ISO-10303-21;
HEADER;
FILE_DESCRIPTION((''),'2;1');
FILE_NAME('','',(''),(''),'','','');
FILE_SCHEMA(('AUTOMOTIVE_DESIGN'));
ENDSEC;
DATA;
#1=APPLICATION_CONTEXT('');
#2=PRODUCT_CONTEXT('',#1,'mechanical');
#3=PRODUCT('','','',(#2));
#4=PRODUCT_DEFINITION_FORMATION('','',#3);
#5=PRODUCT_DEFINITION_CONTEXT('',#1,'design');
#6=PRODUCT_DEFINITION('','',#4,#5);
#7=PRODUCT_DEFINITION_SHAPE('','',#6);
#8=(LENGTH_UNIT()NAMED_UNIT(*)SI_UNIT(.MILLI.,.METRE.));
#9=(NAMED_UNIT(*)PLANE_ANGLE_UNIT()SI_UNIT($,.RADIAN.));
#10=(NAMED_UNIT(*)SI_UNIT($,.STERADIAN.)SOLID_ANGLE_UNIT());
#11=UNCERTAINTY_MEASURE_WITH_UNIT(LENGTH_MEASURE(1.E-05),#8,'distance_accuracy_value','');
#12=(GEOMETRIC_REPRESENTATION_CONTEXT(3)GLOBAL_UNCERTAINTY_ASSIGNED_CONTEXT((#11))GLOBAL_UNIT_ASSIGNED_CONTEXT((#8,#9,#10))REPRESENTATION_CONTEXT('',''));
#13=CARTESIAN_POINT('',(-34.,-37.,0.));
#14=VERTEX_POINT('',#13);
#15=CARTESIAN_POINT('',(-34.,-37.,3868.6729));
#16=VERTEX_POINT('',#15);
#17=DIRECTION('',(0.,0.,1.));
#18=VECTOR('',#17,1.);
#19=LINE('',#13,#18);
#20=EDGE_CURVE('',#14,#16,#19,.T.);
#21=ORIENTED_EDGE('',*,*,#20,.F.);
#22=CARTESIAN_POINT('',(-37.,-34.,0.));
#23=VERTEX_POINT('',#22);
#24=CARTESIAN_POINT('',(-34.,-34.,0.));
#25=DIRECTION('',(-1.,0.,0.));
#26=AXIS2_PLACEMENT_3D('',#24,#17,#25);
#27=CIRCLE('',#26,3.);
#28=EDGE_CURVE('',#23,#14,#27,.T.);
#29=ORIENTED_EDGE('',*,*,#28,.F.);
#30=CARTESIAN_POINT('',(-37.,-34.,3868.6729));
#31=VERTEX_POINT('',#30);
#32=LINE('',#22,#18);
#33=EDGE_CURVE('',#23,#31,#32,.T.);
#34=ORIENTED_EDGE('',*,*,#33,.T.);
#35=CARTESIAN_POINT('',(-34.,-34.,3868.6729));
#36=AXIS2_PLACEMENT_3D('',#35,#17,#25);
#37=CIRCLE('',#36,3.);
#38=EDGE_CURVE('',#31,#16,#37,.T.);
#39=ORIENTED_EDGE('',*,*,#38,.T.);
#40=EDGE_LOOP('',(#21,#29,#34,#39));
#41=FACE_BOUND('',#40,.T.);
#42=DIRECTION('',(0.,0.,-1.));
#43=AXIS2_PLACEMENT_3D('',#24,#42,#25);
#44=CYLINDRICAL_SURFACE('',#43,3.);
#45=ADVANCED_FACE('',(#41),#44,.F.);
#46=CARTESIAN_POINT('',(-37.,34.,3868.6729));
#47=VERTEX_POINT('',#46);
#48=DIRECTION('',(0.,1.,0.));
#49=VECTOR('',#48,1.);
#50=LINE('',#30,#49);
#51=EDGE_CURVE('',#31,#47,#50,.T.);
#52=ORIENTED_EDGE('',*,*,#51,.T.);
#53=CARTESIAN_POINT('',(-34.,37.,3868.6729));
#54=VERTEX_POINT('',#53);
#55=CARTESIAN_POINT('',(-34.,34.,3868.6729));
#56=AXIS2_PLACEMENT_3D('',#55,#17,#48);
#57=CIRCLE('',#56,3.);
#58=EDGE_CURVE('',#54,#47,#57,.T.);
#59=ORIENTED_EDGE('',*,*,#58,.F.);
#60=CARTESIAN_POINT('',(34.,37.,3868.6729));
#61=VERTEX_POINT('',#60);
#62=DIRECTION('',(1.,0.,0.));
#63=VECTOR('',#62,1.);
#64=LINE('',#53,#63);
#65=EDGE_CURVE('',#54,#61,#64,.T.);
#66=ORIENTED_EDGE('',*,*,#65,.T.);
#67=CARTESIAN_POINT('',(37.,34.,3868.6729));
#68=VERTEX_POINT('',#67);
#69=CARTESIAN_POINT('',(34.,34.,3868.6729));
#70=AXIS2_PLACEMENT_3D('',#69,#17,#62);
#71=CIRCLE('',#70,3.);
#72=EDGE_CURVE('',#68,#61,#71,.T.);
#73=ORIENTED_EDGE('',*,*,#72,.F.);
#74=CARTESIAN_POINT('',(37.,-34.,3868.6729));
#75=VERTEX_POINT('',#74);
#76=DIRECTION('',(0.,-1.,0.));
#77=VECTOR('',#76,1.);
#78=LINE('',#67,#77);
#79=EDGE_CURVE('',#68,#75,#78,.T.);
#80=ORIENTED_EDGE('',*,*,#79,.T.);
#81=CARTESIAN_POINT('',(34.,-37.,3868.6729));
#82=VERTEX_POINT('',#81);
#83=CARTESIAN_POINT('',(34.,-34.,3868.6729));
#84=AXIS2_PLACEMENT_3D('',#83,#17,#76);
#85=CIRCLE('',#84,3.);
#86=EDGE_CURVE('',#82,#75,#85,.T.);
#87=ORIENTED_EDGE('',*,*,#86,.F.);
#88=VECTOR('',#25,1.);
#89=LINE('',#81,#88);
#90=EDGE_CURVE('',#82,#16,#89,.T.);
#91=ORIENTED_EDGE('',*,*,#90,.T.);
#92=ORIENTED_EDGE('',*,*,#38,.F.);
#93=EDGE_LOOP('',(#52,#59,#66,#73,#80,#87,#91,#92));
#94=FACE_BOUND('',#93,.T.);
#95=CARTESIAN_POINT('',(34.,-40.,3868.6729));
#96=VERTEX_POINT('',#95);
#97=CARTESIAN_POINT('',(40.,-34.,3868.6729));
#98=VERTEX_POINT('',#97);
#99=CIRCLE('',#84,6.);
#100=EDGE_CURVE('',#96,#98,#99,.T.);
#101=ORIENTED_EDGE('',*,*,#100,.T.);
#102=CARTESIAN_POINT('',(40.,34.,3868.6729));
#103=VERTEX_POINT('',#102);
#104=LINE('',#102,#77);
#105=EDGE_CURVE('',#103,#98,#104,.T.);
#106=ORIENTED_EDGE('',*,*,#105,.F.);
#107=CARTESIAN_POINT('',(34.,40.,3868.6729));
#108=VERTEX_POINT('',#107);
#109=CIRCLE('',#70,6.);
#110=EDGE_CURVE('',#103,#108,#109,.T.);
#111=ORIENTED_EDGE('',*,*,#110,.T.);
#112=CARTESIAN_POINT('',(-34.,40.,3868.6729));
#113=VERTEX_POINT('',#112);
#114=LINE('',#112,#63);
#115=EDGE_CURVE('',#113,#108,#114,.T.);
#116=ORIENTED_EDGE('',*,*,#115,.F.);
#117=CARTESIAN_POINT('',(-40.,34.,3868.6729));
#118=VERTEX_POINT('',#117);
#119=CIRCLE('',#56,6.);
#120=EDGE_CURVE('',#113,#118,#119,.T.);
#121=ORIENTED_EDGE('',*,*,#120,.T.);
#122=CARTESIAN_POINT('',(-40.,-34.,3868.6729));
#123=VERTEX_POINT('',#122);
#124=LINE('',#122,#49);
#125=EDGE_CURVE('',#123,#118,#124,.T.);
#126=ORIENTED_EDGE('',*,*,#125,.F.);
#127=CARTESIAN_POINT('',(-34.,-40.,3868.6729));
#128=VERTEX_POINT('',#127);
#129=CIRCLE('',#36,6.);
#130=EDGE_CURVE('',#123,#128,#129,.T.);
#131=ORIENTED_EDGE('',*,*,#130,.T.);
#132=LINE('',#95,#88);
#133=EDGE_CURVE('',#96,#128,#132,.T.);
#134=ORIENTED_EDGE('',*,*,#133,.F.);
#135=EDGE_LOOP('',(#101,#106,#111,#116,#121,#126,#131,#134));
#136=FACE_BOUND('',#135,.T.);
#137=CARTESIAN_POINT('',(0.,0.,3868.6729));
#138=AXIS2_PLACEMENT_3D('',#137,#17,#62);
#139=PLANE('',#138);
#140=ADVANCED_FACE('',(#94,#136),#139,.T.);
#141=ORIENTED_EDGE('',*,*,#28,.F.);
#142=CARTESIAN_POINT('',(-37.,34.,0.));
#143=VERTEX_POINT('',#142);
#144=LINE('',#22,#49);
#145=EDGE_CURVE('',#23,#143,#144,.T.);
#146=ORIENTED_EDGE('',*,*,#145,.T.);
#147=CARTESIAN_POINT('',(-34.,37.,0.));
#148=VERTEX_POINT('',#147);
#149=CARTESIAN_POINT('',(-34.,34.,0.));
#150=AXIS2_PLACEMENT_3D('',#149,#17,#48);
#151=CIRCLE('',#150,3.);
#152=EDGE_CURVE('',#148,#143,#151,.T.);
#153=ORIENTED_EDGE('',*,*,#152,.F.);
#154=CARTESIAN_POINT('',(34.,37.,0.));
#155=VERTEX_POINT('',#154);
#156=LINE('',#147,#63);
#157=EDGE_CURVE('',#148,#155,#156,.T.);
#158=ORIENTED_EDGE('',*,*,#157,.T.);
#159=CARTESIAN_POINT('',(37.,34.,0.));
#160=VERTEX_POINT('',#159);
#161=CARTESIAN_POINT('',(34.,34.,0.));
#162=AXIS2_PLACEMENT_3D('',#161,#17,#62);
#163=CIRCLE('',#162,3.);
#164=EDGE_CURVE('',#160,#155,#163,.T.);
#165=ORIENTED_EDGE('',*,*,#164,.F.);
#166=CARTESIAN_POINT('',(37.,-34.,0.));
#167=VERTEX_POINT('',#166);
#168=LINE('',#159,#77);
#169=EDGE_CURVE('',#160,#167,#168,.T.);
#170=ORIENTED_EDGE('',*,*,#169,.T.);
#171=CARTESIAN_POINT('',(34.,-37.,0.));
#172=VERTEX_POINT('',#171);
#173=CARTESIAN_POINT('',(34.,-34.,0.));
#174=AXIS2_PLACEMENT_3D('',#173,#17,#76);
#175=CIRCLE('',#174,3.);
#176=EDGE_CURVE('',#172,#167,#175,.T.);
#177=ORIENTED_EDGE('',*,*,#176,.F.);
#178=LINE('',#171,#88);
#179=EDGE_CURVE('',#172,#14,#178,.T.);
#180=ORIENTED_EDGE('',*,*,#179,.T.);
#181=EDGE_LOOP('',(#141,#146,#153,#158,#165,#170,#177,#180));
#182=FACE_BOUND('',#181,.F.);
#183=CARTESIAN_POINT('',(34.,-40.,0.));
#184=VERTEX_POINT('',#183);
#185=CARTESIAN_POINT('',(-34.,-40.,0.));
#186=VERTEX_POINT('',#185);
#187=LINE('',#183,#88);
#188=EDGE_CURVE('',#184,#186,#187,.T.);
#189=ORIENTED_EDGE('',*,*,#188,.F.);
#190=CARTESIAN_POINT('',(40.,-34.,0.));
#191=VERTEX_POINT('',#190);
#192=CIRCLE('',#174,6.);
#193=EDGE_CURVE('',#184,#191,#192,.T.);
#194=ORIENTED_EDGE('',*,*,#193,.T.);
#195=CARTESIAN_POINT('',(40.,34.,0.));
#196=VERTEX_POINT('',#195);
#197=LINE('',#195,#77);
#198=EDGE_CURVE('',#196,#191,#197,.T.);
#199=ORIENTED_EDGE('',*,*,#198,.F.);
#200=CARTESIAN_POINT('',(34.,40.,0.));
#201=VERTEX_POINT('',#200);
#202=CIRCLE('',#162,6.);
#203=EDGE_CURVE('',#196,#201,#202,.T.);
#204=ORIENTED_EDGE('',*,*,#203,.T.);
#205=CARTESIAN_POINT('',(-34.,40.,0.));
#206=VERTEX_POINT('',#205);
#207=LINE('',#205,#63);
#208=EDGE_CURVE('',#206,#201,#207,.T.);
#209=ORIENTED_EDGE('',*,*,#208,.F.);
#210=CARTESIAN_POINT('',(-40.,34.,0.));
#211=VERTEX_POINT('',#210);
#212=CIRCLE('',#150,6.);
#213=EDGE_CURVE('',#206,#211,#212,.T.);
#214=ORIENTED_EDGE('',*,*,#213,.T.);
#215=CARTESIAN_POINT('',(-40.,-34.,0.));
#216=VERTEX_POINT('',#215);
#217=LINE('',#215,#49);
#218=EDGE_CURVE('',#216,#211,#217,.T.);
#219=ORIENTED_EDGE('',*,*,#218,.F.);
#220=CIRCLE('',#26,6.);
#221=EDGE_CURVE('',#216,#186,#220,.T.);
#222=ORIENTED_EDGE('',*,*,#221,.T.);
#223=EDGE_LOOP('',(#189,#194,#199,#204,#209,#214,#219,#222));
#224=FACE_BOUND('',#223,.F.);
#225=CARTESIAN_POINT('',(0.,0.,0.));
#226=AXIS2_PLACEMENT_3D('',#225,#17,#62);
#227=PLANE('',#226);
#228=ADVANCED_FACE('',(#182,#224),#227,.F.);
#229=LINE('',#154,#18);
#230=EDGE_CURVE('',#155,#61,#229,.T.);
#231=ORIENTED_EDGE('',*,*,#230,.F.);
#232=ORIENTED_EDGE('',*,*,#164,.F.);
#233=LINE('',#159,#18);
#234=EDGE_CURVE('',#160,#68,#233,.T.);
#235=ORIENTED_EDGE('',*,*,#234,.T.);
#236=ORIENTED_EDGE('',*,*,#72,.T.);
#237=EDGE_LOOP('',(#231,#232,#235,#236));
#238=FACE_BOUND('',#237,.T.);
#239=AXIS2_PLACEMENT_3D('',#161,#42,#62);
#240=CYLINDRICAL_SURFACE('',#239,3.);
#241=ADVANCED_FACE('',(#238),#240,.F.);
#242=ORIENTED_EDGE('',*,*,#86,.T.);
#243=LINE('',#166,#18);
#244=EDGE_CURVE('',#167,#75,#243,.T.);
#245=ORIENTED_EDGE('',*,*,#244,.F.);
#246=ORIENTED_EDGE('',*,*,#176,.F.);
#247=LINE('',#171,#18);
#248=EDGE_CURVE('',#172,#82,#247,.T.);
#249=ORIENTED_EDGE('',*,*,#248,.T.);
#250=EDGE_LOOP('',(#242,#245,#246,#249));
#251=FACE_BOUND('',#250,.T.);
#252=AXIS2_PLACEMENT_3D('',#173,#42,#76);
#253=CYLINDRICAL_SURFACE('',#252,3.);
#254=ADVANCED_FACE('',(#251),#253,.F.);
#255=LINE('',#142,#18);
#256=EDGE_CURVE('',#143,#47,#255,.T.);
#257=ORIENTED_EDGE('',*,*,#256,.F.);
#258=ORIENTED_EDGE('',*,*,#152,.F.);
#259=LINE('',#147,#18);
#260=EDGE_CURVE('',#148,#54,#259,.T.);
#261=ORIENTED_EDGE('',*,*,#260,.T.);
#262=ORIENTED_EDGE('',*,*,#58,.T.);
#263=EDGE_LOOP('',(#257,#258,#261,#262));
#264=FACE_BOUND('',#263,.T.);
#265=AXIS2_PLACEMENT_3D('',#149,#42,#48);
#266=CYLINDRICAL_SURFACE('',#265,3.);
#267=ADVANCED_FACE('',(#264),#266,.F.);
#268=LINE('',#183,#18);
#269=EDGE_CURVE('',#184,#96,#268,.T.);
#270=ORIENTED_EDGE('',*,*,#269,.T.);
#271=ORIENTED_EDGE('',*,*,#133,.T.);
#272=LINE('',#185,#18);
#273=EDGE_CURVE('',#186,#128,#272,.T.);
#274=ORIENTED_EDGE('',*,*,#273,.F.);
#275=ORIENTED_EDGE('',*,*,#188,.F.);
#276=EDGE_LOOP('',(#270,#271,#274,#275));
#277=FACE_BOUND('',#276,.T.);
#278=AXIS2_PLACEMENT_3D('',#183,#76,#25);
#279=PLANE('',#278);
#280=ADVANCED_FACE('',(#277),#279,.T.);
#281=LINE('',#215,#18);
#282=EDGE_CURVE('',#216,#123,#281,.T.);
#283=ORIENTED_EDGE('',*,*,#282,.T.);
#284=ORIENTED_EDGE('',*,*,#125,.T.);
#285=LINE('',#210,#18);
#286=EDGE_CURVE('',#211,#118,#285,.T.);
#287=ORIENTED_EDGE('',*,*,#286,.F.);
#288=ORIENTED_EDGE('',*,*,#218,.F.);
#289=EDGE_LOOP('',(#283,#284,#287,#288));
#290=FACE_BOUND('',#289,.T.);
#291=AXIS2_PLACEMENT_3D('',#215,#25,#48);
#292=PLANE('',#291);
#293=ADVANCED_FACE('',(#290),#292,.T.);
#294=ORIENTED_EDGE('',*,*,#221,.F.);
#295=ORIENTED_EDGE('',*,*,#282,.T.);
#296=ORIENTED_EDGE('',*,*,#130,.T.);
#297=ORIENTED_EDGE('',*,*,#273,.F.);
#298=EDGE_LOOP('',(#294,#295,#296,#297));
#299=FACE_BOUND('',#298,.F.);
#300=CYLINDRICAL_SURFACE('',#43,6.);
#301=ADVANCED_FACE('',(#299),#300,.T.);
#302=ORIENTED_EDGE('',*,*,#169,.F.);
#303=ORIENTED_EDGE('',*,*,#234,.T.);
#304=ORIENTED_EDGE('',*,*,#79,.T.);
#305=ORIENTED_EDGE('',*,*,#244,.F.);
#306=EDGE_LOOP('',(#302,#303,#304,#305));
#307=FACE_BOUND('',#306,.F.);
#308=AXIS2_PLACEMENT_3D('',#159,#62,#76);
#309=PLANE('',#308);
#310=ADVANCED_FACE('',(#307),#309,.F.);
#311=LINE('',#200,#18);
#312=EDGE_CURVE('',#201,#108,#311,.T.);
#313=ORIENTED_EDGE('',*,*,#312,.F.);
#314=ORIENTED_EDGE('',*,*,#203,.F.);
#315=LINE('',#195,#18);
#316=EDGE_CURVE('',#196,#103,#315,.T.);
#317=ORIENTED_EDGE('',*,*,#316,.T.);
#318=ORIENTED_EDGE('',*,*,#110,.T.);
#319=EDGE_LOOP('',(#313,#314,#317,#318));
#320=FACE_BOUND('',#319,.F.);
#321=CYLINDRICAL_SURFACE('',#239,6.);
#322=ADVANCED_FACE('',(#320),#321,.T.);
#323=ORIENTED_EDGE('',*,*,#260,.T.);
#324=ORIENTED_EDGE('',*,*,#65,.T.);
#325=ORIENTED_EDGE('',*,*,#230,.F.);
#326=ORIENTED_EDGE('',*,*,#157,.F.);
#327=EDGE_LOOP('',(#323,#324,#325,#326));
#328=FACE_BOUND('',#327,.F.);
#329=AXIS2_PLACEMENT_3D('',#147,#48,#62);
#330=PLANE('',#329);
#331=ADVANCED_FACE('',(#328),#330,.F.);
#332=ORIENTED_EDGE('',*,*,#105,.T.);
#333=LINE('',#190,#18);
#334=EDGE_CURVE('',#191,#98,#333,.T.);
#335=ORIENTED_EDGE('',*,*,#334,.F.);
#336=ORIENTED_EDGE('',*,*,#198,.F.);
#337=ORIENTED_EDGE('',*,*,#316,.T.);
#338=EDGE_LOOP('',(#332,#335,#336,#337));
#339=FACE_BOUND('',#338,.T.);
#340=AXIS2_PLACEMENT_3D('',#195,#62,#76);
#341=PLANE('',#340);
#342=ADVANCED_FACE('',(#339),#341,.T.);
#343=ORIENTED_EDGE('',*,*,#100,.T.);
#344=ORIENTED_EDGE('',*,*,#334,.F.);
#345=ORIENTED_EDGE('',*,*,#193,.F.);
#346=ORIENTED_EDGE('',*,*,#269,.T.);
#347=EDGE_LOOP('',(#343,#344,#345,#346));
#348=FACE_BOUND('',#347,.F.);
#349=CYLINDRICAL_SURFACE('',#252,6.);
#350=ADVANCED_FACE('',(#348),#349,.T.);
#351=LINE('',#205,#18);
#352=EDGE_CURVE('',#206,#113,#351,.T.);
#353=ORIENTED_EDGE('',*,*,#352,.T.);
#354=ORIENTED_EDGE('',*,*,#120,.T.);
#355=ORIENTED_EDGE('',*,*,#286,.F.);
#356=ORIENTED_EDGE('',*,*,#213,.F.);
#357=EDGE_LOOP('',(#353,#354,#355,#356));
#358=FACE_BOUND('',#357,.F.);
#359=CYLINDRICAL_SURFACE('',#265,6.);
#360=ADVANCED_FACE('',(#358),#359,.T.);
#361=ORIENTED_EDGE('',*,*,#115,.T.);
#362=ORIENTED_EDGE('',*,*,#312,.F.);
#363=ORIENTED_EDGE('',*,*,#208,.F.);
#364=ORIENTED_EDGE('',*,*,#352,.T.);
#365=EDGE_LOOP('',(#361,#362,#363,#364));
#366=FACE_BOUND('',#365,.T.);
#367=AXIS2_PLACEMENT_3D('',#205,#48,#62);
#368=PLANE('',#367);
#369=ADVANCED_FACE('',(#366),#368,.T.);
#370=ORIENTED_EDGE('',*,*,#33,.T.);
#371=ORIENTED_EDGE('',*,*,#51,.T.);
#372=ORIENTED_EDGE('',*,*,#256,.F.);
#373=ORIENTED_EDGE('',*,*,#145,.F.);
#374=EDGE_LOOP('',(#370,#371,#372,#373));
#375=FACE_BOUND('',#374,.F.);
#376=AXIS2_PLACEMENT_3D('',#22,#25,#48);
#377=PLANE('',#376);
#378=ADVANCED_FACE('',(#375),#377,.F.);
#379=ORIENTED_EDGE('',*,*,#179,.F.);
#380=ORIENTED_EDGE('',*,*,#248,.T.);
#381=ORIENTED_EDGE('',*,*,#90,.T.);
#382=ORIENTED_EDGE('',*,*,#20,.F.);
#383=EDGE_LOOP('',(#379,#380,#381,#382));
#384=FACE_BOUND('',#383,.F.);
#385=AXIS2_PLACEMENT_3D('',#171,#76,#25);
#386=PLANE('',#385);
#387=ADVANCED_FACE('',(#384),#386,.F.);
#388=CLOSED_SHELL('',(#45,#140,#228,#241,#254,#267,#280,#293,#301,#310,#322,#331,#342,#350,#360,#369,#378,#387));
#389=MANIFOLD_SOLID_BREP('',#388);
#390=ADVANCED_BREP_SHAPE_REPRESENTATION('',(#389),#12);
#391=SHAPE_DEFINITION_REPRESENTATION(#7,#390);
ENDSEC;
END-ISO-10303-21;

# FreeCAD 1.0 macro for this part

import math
import FreeCAD as App
import Part
import Sketcher

V = App.Vector

doc = App.newDocument("Part")
params = doc.addObject("Spreadsheet::Sheet", "Params")
for row, (alias, value) in enumerate([
    ("sketch1_radius", "6 mm"),
    ("sketch1_radius2", "3 mm"),
    ("pad1_length", "3868.6729 mm"),
], start=1):
    params.set(f"A{row}", alias)
    params.set(f"B{row}", "=" + value)
    params.setAlias(f"B{row}", alias)

body = doc.addObject("PartDesign::Body", "Body")

# Sketch on XY plane
sketch1 = body.newObject("Sketcher::SketchObject", "Sketch")
sketch1.AttachmentSupport = (doc.getObject("XY_Plane"), [""])
sketch1.MapMode = "FlatFace"
sketch1.addGeometry(Part.LineSegment(V(-40, 34, 0), V(-40, -34, 0)), False)
sketch1.addGeometry(Part.ArcOfCircle(Part.Circle(V(-34, -34, 0), V(0, 0, 1), 6), math.radians(180), math.radians(270)), False)
sketch1.addGeometry(Part.LineSegment(V(-34, -40, 0), V(34, -40, 0)), False)
sketch1.addGeometry(Part.ArcOfCircle(Part.Circle(V(34, -34, 0), V(0, 0, 1), 6), math.radians(-90), math.radians(0)), False)
sketch1.addGeometry(Part.LineSegment(V(40, -34, 0), V(40, 34, 0)), False)
sketch1.addGeometry(Part.ArcOfCircle(Part.Circle(V(34, 34, 0), V(0, 0, 1), 6), math.radians(0), math.radians(90)), False)
sketch1.addGeometry(Part.LineSegment(V(34, 40, 0), V(-34, 40, 0)), False)
sketch1.addGeometry(Part.ArcOfCircle(Part.Circle(V(-34, 34, 0), V(0, 0, 1), 6), math.radians(90), math.radians(180)), False)
sketch1.addGeometry(Part.ArcOfCircle(Part.Circle(V(-34, 34, 0), V(0, 0, 1), 3), math.radians(90), math.radians(180)), False)
sketch1.addGeometry(Part.LineSegment(V(-34, 37, 0), V(34, 37, 0)), False)
sketch1.addGeometry(Part.ArcOfCircle(Part.Circle(V(34, 34, 0), V(0, 0, 1), 3), math.radians(0), math.radians(90)), False)
sketch1.addGeometry(Part.LineSegment(V(37, 34, 0), V(37, -34, 0)), False)
sketch1.addGeometry(Part.ArcOfCircle(Part.Circle(V(34, -34, 0), V(0, 0, 1), 3), math.radians(-90), math.radians(0)), False)
sketch1.addGeometry(Part.LineSegment(V(34, -37, 0), V(-34, -37, 0)), False)
sketch1.addGeometry(Part.ArcOfCircle(Part.Circle(V(-34, -34, 0), V(0, 0, 1), 3), math.radians(180), math.radians(270)), False)
sketch1.addGeometry(Part.LineSegment(V(-37, -34, 0), V(-37, 34, 0)), False)
sketch1.addConstraint(Sketcher.Constraint("Tangent", 0, 2, 1, 1))
sketch1.addConstraint(Sketcher.Constraint("Tangent", 1, 2, 2, 1))
sketch1.addConstraint(Sketcher.Constraint("Tangent", 2, 2, 3, 1))
sketch1.addConstraint(Sketcher.Constraint("Tangent", 3, 2, 4, 1))
sketch1.addConstraint(Sketcher.Constraint("Tangent", 4, 2, 5, 1))
sketch1.addConstraint(Sketcher.Constraint("Tangent", 5, 2, 6, 1))
sketch1.addConstraint(Sketcher.Constraint("Tangent", 6, 2, 7, 1))
sketch1.addConstraint(Sketcher.Constraint("Tangent", 7, 2, 0, 1))
sketch1.addConstraint(Sketcher.Constraint("Tangent", 8, 1, 9, 1))
sketch1.addConstraint(Sketcher.Constraint("Tangent", 9, 2, 10, 2))
sketch1.addConstraint(Sketcher.Constraint("Tangent", 10, 1, 11, 1))
sketch1.addConstraint(Sketcher.Constraint("Tangent", 11, 2, 12, 2))
sketch1.addConstraint(Sketcher.Constraint("Tangent", 12, 1, 13, 1))
sketch1.addConstraint(Sketcher.Constraint("Tangent", 13, 2, 14, 2))
sketch1.addConstraint(Sketcher.Constraint("Tangent", 14, 1, 15, 1))
sketch1.addConstraint(Sketcher.Constraint("Tangent", 15, 2, 8, 2))
sketch1.addConstraint(Sketcher.Constraint("Vertical", 0))
sketch1.addConstraint(Sketcher.Constraint("Horizontal", 2))
sketch1.addConstraint(Sketcher.Constraint("Vertical", 4))
sketch1.addConstraint(Sketcher.Constraint("Horizontal", 6))
sketch1.addConstraint(Sketcher.Constraint("Horizontal", 9))
sketch1.addConstraint(Sketcher.Constraint("Vertical", 11))
sketch1.addConstraint(Sketcher.Constraint("Horizontal", 13))
sketch1.addConstraint(Sketcher.Constraint("Vertical", 15))
sketch1.addConstraint(Sketcher.Constraint("Coincident", 8, 3, 7, 3))
sketch1.addConstraint(Sketcher.Constraint("Coincident", 10, 3, 5, 3))
sketch1.addConstraint(Sketcher.Constraint("Coincident", 12, 3, 3, 3))
sketch1.addConstraint(Sketcher.Constraint("Equal", 1, 3))
sketch1.addConstraint(Sketcher.Constraint("Equal", 3, 5))
sketch1.addConstraint(Sketcher.Constraint("Equal", 5, 7))
sketch1.addConstraint(Sketcher.Constraint("Equal", 12, 14))
sketch1.addConstraint(Sketcher.Constraint("Symmetric", 1, 3, 5, 3, -1, 1))
sketch1.addConstraint(Sketcher.Constraint("Equal", 13, 0))
sketch1.addConstraint(Sketcher.Constraint("Radius", 1, 6.0))
sketch1.addConstraint(Sketcher.Constraint("Radius", 8, 3.0))
sketch1.addConstraint(Sketcher.Constraint("DistanceX", 0, 2, -1, 1, 40.0))
sketch1.setExpression("Constraints[33]", "Params.sketch1_radius")
sketch1.setExpression("Constraints[34]", "Params.sketch1_radius2")
pad1 = body.newObject("PartDesign::Pad", "Pad")
pad1.Profile = sketch1
pad1.setExpression("Length", "Params.pad1_length")

doc.recompute()
